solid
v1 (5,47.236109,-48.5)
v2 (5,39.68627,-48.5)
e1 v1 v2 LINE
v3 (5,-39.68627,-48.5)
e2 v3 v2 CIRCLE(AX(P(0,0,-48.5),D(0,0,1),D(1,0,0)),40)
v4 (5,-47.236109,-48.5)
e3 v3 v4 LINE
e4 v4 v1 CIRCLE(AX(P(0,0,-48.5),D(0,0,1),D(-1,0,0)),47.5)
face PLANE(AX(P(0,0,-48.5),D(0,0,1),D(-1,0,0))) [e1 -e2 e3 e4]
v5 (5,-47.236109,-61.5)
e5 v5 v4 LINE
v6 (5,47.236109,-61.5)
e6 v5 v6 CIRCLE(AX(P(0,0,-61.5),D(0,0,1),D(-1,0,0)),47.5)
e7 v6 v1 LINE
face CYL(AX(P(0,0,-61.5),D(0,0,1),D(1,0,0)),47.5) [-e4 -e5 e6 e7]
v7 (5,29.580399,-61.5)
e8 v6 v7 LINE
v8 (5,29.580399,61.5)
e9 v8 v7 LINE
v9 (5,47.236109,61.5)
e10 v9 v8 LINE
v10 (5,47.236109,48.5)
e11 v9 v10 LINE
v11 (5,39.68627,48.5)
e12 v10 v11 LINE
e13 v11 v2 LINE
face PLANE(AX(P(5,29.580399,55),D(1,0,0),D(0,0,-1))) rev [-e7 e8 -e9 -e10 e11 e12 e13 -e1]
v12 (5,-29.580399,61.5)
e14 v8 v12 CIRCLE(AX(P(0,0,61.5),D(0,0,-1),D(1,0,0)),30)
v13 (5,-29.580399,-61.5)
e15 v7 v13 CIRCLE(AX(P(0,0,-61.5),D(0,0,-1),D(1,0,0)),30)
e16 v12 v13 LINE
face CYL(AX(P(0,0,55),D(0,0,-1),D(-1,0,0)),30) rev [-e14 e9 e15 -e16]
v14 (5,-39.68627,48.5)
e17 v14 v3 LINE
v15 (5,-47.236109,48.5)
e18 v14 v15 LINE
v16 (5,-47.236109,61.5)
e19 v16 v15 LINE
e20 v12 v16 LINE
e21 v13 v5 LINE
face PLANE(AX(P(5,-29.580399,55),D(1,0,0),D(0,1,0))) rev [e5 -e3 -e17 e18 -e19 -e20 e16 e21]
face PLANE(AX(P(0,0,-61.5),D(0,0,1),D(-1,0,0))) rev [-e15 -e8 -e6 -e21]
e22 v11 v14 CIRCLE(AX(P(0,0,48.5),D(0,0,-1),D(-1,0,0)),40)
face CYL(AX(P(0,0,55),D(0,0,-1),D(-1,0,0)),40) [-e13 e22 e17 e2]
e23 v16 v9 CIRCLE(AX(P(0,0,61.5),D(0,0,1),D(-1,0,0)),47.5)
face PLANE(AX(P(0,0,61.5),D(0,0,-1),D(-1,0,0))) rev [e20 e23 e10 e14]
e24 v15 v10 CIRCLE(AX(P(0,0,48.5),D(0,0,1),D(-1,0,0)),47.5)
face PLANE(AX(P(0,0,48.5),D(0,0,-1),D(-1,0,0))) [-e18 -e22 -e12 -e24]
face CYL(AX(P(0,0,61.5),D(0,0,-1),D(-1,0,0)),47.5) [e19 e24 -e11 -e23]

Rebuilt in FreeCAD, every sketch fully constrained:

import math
import FreeCAD as App
import Part
import Sketcher

V = App.Vector
Q = App.Units.Quantity

doc = App.newDocument("Part")
body = doc.addObject("PartDesign::Body", "Body")

# Sketch on XY plane
sketch1 = body.newObject("Sketcher::SketchObject", "Sketch")
sketch1.AttachmentSupport = (doc.getObject("XY_Plane"), [""])
sketch1.MapMode = "FlatFace"
sketch1.addGeometry([
    Part.LineSegment(V(5, 39.68627, 0), V(5, 29.580399, 0)),
    Part.ArcOfCircle(Part.Circle(V(0, 0, 0), V(0, 0, 1), 30), math.radians(-80.405932), math.radians(80.405932)),
    Part.LineSegment(V(5, -29.580399, 0), V(5, -39.68627, 0)),
    Part.ArcOfCircle(Part.Circle(V(0, 0, 0), V(0, 0, 1), 40), math.radians(-82.819244), math.radians(82.819244)),
], False)
sketch1.addConstraint([
    Sketcher.Constraint("Coincident", 0, 2, 1, 2),
    Sketcher.Constraint("Coincident", 1, 1, 2, 1),
    Sketcher.Constraint("Coincident", 2, 2, 3, 1),
    Sketcher.Constraint("Coincident", 3, 2, 0, 1),
    Sketcher.Constraint("Vertical", 0),
    Sketcher.Constraint("Vertical", 2),
    Sketcher.Constraint("Coincident", 1, 3, -1, 1),
    Sketcher.Constraint("Coincident", 3, 3, -1, 1),
    Sketcher.Constraint("Vertical", 0, 2, 1, 1),
    Sketcher.Constraint("Radius", 1, Q("30 mm")),
    Sketcher.Constraint("Radius", 3, Q("40 mm")),
    Sketcher.Constraint("DistanceX", -1, 1, 0, 2, Q("5 mm")),
])
pad1 = body.newObject("PartDesign::Pad", "Pad")
pad1.Profile = sketch1
pad1.Length = 110
pad1.Midplane = True

# Sketch on XY plane
sketch2 = body.newObject("Sketcher::SketchObject", "Sketch001")
sketch2.AttachmentSupport = (doc.getObject("XY_Plane"), [""])
sketch2.MapMode = "FlatFace"
sketch2.AttachmentOffset = App.Placement(V(0, 0, 55), App.Rotation())
sketch2.addGeometry([
    Part.LineSegment(V(5, 47.236109, 0), V(5, 29.580399, 0)),
    Part.ArcOfCircle(Part.Circle(V(0, 0, 0), V(0, 0, 1), 30), math.radians(-80.405932), math.radians(80.405932)),
    Part.LineSegment(V(5, -29.580399, 0), V(5, -47.236109, 0)),
    Part.ArcOfCircle(Part.Circle(V(0, 0, 0), V(0, 0, 1), 47.5), math.radians(-83.957672), math.radians(83.957672)),
], False)
sketch2.addConstraint([
    Sketcher.Constraint("Coincident", 0, 2, 1, 2),
    Sketcher.Constraint("Coincident", 1, 1, 2, 1),
    Sketcher.Constraint("Coincident", 2, 2, 3, 1),
    Sketcher.Constraint("Coincident", 3, 2, 0, 1),
    Sketcher.Constraint("Vertical", 0),
    Sketcher.Constraint("Vertical", 2),
    Sketcher.Constraint("Coincident", 1, 3, -1, 1),
    Sketcher.Constraint("Coincident", 3, 3, -1, 1),
    Sketcher.Constraint("Vertical", 0, 2, 1, 1),
    Sketcher.Constraint("Radius", 1, Q("30 mm")),
    Sketcher.Constraint("Radius", 3, Q("47.5 mm")),
    Sketcher.Constraint("DistanceX", -1, 1, 0, 2, Q("5 mm")),
])
pad2 = body.newObject("PartDesign::Pad", "Pad001")
pad2.Profile = sketch2
pad2.Length = 13
pad2.Midplane = True
doc.recompute()

mirrored = body.newObject("PartDesign::Mirrored", "Mirrored")
mirrored.Originals = [pad2]
mirrored.MirrorPlane = (doc.getObject("XY_Plane"), [""])
body.Tip = mirrored

doc.recompute()
